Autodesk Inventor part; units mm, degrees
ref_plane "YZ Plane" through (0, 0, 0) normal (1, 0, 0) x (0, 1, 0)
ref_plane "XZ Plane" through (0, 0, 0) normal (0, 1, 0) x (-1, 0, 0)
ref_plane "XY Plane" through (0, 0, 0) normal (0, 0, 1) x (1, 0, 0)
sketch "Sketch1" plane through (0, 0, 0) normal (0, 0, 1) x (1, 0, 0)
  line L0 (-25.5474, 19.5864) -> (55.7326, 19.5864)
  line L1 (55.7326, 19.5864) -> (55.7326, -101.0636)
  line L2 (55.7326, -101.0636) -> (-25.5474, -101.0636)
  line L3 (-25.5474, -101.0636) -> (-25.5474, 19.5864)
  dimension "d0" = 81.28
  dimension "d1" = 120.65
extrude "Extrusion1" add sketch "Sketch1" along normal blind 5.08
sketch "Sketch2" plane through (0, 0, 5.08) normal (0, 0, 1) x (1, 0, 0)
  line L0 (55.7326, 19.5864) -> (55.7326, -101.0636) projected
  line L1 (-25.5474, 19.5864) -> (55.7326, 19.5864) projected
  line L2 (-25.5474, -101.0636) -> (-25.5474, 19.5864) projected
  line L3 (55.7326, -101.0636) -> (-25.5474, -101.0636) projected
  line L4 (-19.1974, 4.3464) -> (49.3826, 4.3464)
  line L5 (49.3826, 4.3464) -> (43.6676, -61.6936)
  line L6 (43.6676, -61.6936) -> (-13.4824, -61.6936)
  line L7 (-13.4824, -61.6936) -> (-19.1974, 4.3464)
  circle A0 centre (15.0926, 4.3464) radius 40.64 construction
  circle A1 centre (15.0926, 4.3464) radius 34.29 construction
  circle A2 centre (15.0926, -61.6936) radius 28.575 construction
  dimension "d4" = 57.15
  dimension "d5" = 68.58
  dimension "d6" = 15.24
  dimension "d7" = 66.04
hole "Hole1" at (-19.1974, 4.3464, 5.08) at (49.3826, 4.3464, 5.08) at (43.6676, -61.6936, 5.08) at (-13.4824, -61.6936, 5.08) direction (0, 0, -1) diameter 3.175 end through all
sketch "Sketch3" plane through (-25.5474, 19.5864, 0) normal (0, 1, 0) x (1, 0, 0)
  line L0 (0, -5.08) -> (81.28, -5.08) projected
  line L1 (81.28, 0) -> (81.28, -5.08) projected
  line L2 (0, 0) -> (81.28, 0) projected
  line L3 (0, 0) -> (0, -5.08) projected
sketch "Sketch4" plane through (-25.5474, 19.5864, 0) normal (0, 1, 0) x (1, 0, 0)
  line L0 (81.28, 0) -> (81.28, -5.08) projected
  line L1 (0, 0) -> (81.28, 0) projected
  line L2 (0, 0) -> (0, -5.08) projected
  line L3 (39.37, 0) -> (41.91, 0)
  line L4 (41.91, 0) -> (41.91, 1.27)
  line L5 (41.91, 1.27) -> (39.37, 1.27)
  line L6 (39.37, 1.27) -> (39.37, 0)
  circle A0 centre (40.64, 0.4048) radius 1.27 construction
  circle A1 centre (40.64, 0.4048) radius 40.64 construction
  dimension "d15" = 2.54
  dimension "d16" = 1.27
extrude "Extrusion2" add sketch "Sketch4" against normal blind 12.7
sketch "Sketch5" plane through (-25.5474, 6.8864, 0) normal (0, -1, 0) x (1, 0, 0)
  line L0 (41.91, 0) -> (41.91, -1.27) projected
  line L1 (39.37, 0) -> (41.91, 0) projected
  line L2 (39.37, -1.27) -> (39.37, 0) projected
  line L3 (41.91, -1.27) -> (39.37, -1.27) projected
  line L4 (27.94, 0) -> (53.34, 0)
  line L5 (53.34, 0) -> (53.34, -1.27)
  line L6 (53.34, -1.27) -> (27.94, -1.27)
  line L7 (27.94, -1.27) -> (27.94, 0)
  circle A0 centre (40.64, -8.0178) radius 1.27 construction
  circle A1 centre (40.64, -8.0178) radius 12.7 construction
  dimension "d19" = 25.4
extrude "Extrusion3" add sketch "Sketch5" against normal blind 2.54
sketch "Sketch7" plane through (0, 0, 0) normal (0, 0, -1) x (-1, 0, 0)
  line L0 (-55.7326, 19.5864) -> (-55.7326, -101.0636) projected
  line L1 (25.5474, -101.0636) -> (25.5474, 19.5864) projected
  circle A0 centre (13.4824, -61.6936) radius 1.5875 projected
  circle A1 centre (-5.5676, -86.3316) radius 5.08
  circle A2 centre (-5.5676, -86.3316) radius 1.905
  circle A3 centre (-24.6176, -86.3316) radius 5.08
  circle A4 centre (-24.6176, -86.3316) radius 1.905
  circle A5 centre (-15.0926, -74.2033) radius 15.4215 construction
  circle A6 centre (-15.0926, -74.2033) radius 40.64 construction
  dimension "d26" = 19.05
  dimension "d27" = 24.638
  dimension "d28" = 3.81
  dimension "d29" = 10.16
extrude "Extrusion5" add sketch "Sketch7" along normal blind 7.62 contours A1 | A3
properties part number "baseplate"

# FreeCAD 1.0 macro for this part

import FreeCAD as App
import Part
import Sketcher
from FreeCAD import Vector
Q = App.Units.Quantity

doc = App.newDocument("Part")
params = doc.addObject("Spreadsheet::Sheet", "Params")
for row, (alias, value) in enumerate([
    ("sketch1_width", "3.2 in"),
    ("sketch1_height", "4.75 in"),
    ("pad1_length", "0.2 in"),
    ("sketch2_diameter", "0.125 in"),
    ("hole_diameter", "0.125 in"),
    ("sketch3_width", "0.1 in"),
    ("sketch3_height", "0.05 in"),
    ("pad2_length", "0.5 in"),
    ("sketch4_width", "1 in"),
    ("sketch4_height", "0.05 in"),
    ("pad3_length", "0.1 in"),
    ("sketch5_diameter", "0.4 in"),
    ("sketch5_diameter2", "0.15 in"),
    ("pad4_length", "0.3 in"),
], start=1):
    params.set(f"A{row}", alias)
    params.set(f"B{row}", "=" + value)
    params.setAlias(f"B{row}", alias)

body = doc.addObject("PartDesign::Body", "Body")

# Sketch on XY plane
sketch1 = doc.addObject("Sketcher::SketchObject", "Sketch")
body.addObject(sketch1)
sketch1.AttachmentSupport = (doc.XY_Plane, [""])
sketch1.MapMode = "FlatFace"
sketch1.addGeometry(Part.LineSegment(Vector(56, 20, 0), Vector(-26, 20, 0)), False)
sketch1.addGeometry(Part.LineSegment(Vector(-26, 20, 0), Vector(-26, -101, 0)), False)
sketch1.addGeometry(Part.LineSegment(Vector(-26, -101, 0), Vector(56, -101, 0)), False)
sketch1.addGeometry(Part.LineSegment(Vector(56, -101, 0), Vector(56, 20, 0)), False)
sketch1.addConstraint(Sketcher.Constraint("Coincident", 0, 2, 1, 1))
sketch1.addConstraint(Sketcher.Constraint("Coincident", 1, 2, 2, 1))
sketch1.addConstraint(Sketcher.Constraint("Coincident", 2, 2, 3, 1))
sketch1.addConstraint(Sketcher.Constraint("Coincident", 3, 2, 0, 1))
sketch1.addConstraint(Sketcher.Constraint("Horizontal", 0))
sketch1.addConstraint(Sketcher.Constraint("Vertical", 1))
sketch1.addConstraint(Sketcher.Constraint("Horizontal", 2))
sketch1.addConstraint(Sketcher.Constraint("Vertical", 3))
sketch1.addConstraint(Sketcher.Constraint("DistanceX", 0, 2, 0, 1, Q("3.2 in")))
sketch1.addConstraint(Sketcher.Constraint("DistanceY", 1, 2, 1, 1, Q("4.75 in")))
sketch1.addConstraint(Sketcher.Constraint("DistanceX", 0, 2, -1, 1, Q("1.0058 in")))
sketch1.addConstraint(Sketcher.Constraint("DistanceY", -1, 1, 0, 2, 19.5864))
sketch1.setExpression("Constraints[8]", "Params.sketch1_width")
sketch1.setExpression("Constraints[9]", "Params.sketch1_height")
pad1 = doc.addObject("PartDesign::Pad", "Pad")
body.addObject(pad1)
pad1.Profile = sketch1
pad1.setExpression("Length", "Params.pad1_length")

# Sketch on XY plane
sketch2 = doc.addObject("Sketcher::SketchObject", "Sketch001")
body.addObject(sketch2)
sketch2.AttachmentSupport = (doc.XY_Plane, [""])
sketch2.MapMode = "FlatFace"
sketch2.AttachmentOffset = App.Placement(Vector(0, 0, 0.2 * 25.4), App.Rotation())
sketch2.addGeometry(Part.Circle(Vector(-19.2, 4.3, 0), Vector(0, 0, 1), 1.6), False)
sketch2.addGeometry(Part.Circle(Vector(49.4, 4.3, 0), Vector(0, 0, 1), 1.6), False)
sketch2.addGeometry(Part.Circle(Vector(43.7, -61.7, 0), Vector(0, 0, 1), 1.6), False)
sketch2.addGeometry(Part.Circle(Vector(-13.5, -61.7, 0), Vector(0, 0, 1), 1.6), False)
sketch2.addConstraint(Sketcher.Constraint("Equal", 0, 1))
sketch2.addConstraint(Sketcher.Constraint("Equal", 1, 2))
sketch2.addConstraint(Sketcher.Constraint("Equal", 2, 3))
sketch2.addConstraint(Sketcher.Constraint("Horizontal", 0, 3, 1, 3))
sketch2.addConstraint(Sketcher.Constraint("Horizontal", 2, 3, 3, 3))
sketch2.addConstraint(Sketcher.Constraint("Diameter", 0, Q("0.125 in")))
sketch2.addConstraint(Sketcher.Constraint("DistanceX", 0, 3, 1, 3, Q("2.7 in")))
sketch2.addConstraint(Sketcher.Constraint("DistanceY", 2, 3, 1, 3, Q("2.6 in")))
sketch2.addConstraint(Sketcher.Constraint("DistanceX", 3, 3, 2, 3, Q("2.25 in")))
sketch2.addConstraint(Sketcher.Constraint("DistanceX", 2, 3, 1, 3, Q("0.225 in")))
sketch2.addConstraint(Sketcher.Constraint("DistanceX", 0, 3, -1, 1, Q("0.7558 in")))
sketch2.addConstraint(Sketcher.Constraint("DistanceY", -1, 1, 0, 3, 4.3464))
sketch2.setExpression("Constraints[5]", "Params.sketch2_diameter")
doc.recompute()
hole = doc.addObject("PartDesign::Hole", "Hole")
body.addObject(hole)
hole.Profile = sketch2
hole.ThreadType = "None"
hole.setExpression("Diameter", "Params.hole_diameter")
hole.DepthType = "ThroughAll"

# Sketch on XZ plane
sketch3 = doc.addObject("Sketcher::SketchObject", "Sketch002")
body.addObject(sketch3)
sketch3.AttachmentSupport = (doc.XZ_Plane, [""])
sketch3.MapMode = "FlatFace"
sketch3.AttachmentOffset = App.Placement(Vector(0, 0, -19.5864), App.Rotation())
sketch3.addGeometry(Part.LineSegment(Vector(13.8, -1.3, 0), Vector(13.8, 0, 0)), False)
sketch3.addGeometry(Part.LineSegment(Vector(13.8, 0, 0), Vector(16.4, 0, 0)), False)
sketch3.addGeometry(Part.LineSegment(Vector(16.4, 0, 0), Vector(16.4, -1.3, 0)), False)
sketch3.addGeometry(Part.LineSegment(Vector(16.4, -1.3, 0), Vector(13.8, -1.3, 0)), False)
sketch3.addConstraint(Sketcher.Constraint("Coincident", 0, 2, 1, 1))
sketch3.addConstraint(Sketcher.Constraint("Coincident", 1, 2, 2, 1))
sketch3.addConstraint(Sketcher.Constraint("Coincident", 2, 2, 3, 1))
sketch3.addConstraint(Sketcher.Constraint("Coincident", 3, 2, 0, 1))
sketch3.addConstraint(Sketcher.Constraint("Vertical", 0))
sketch3.addConstraint(Sketcher.Constraint("Horizontal", 1))
sketch3.addConstraint(Sketcher.Constraint("Vertical", 2))
sketch3.addConstraint(Sketcher.Constraint("Horizontal", 3))
sketch3.addConstraint(Sketcher.Constraint("PointOnObject", 0, 2, -1))
sketch3.addConstraint(Sketcher.Constraint("DistanceX", 1, 1, 1, 2, Q("0.1 in")))
sketch3.addConstraint(Sketcher.Constraint("DistanceY", 0, 1, 0, 2, Q("0.05 in")))
sketch3.addConstraint(Sketcher.Constraint("DistanceX", -1, 1, 0, 2, Q("0.5442 in")))
sketch3.setExpression("Constraints[9]", "Params.sketch3_width")
sketch3.setExpression("Constraints[10]", "Params.sketch3_height")
pad2 = doc.addObject("PartDesign::Pad", "Pad001")
body.addObject(pad2)
pad2.Profile = sketch3
pad2.setExpression("Length", "Params.pad2_length")

# Sketch on XZ plane
sketch4 = doc.addObject("Sketcher::SketchObject", "Sketch003")
body.addObject(sketch4)
sketch4.AttachmentSupport = (doc.XZ_Plane, [""])
sketch4.MapMode = "FlatFace"
sketch4.AttachmentOffset = App.Placement(Vector(0, 0, -6.8864), App.Rotation())
sketch4.addGeometry(Part.LineSegment(Vector(27.8, 0, 0), Vector(2.4, 0, 0)), False)
sketch4.addGeometry(Part.LineSegment(Vector(2.4, 0, 0), Vector(2.4, -1.3, 0)), False)
sketch4.addGeometry(Part.LineSegment(Vector(2.4, -1.3, 0), Vector(27.8, -1.3, 0)), False)
sketch4.addGeometry(Part.LineSegment(Vector(27.8, -1.3, 0), Vector(27.8, 0, 0)), False)
sketch4.addConstraint(Sketcher.Constraint("Coincident", 0, 2, 1, 1))
sketch4.addConstraint(Sketcher.Constraint("Coincident", 1, 2, 2, 1))
sketch4.addConstraint(Sketcher.Constraint("Coincident", 2, 2, 3, 1))
sketch4.addConstraint(Sketcher.Constraint("Coincident", 3, 2, 0, 1))
sketch4.addConstraint(Sketcher.Constraint("Horizontal", 0))
sketch4.addConstraint(Sketcher.Constraint("Vertical", 1))
sketch4.addConstraint(Sketcher.Constraint("Horizontal", 2))
sketch4.addConstraint(Sketcher.Constraint("Vertical", 3))
sketch4.addConstraint(Sketcher.Constraint("PointOnObject", 0, 2, -1))
sketch4.addConstraint(Sketcher.Constraint("DistanceX", 0, 2, 0, 1, Q("1 in")))
sketch4.addConstraint(Sketcher.Constraint("DistanceY", 1, 2, 1, 1, Q("0.05 in")))
sketch4.addConstraint(Sketcher.Constraint("DistanceX", -1, 1, 0, 2, Q("0.0942 in")))
sketch4.setExpression("Constraints[9]", "Params.sketch4_width")
sketch4.setExpression("Constraints[10]", "Params.sketch4_height")
pad3 = doc.addObject("PartDesign::Pad", "Pad002")
body.addObject(pad3)
pad3.Profile = sketch4
pad3.setExpression("Length", "Params.pad3_length")
pad3.Reversed = True

# Sketch on XY plane
sketch5 = doc.addObject("Sketcher::SketchObject", "Sketch004")
body.addObject(sketch5)
sketch5.AttachmentSupport = (doc.XY_Plane, [""])
sketch5.MapMode = "FlatFace"
sketch5.addGeometry(Part.Circle(Vector(5.6, -86.3, 0), Vector(0, 0, 1), 5.1), False)
sketch5.addGeometry(Part.Circle(Vector(5.6, -86.3, 0), Vector(0, 0, 1), 1.9), False)
sketch5.addGeometry(Part.Circle(Vector(24.6, -86.3, 0), Vector(0, 0, 1), 5.1), False)
sketch5.addGeometry(Part.Circle(Vector(24.6, -86.3, 0), Vector(0, 0, 1), 1.9), False)
sketch5.addConstraint(Sketcher.Constraint("Coincident", 1, 3, 0, 3))
sketch5.addConstraint(Sketcher.Constraint("Coincident", 3, 3, 2, 3))
sketch5.addConstraint(Sketcher.Constraint("Equal", 0, 2))
sketch5.addConstraint(Sketcher.Constraint("Equal", 1, 3))
sketch5.addConstraint(Sketcher.Constraint("Horizontal", 1, 3, 2, 3))
sketch5.addConstraint(Sketcher.Constraint("Diameter", 0, Q("0.4 in")))
sketch5.addConstraint(Sketcher.Constraint("Diameter", 1, Q("0.15 in")))
sketch5.addConstraint(Sketcher.Constraint("DistanceX", 0, 3, 2, 3, Q("0.75 in")))
sketch5.addConstraint(Sketcher.Constraint("DistanceX", -1, 1, 0, 3, Q("0.2192 in")))
sketch5.addConstraint(Sketcher.Constraint("DistanceY", 0, 3, -1, 1, 86.3316))
sketch5.setExpression("Constraints[5]", "Params.sketch5_diameter")
sketch5.setExpression("Constraints[6]", "Params.sketch5_diameter2")
pad4 = doc.addObject("PartDesign::Pad", "Pad003")
body.addObject(pad4)
pad4.Profile = sketch5
pad4.setExpression("Length", "Params.pad4_length")
pad4.Reversed = True

doc.recompute()
